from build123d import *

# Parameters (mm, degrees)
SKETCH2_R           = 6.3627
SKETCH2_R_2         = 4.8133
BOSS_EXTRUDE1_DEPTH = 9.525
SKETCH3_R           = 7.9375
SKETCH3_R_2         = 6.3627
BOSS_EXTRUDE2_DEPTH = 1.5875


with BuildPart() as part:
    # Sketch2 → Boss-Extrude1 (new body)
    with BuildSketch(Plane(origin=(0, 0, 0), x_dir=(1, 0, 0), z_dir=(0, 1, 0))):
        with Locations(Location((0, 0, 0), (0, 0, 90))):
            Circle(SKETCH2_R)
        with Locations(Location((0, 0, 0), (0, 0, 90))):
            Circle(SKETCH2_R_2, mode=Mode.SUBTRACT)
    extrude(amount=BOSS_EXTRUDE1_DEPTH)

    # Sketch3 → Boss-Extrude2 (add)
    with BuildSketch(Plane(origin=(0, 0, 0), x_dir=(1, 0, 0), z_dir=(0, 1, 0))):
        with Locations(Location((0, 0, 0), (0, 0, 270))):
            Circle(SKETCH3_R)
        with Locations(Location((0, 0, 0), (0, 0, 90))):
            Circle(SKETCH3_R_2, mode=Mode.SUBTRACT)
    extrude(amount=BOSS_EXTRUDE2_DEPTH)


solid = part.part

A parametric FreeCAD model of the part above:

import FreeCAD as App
import Part
import Sketcher
Q = App.Units.Quantity

doc = App.newDocument("Part")
body = doc.addObject("PartDesign::Body", "Body")

sketch1 = doc.addObject("Sketcher::SketchObject", "Sketch")
body.addObject(sketch1)
sketch1.AttachmentSupport = (doc.XZ_Plane, [""])
sketch1.MapMode = "FlatFace"
sketch1.addGeometry(Part.Circle(App.Vector(0, 0, 0), App.Vector(0, 0, 1), 6.4), False)
sketch1.addGeometry(Part.Circle(App.Vector(0, 0, 0), App.Vector(0, 0, 1), 4.8), False)
sketch1.addConstraint(Sketcher.Constraint("Coincident", 0, 3, -1, 1))
sketch1.addConstraint(Sketcher.Constraint("Coincident", 1, 3, -1, 1))
sketch1.addConstraint(Sketcher.Constraint("Diameter", 0, Q("0.501 in")))
sketch1.addConstraint(Sketcher.Constraint("Diameter", 1, Q("0.379 in")))
pad1 = doc.addObject("PartDesign::Pad", "Pad")
body.addObject(pad1)
pad1.Profile = sketch1
pad1.Length = Q("0.375 in")
pad1.Reversed = True

sketch2 = doc.addObject("Sketcher::SketchObject", "Sketch001")
body.addObject(sketch2)
sketch2.AttachmentSupport = (doc.XZ_Plane, [""])
sketch2.MapMode = "FlatFace"
sketch2.addGeometry(Part.Circle(App.Vector(0, 0, 0), App.Vector(0, 0, 1), 8), False)
sketch2.addGeometry(Part.Circle(App.Vector(0, 0, 0), App.Vector(0, 0, 1), 6), False)
sketch2.addConstraint(Sketcher.Constraint("Coincident", 0, 3, -1, 1))
sketch2.addConstraint(Sketcher.Constraint("Coincident", 1, 3, -1, 1))
sketch2.addConstraint(Sketcher.Constraint("Diameter", 0, Q("0.625 in")))
sketch2.addConstraint(Sketcher.Constraint("Diameter", 1, Q("0.501 in")))
pad2 = doc.addObject("PartDesign::Pad", "Pad001")
body.addObject(pad2)
pad2.Profile = sketch2
pad2.Length = Q("0.0625 in")
pad2.Reversed = True

doc.recompute()
